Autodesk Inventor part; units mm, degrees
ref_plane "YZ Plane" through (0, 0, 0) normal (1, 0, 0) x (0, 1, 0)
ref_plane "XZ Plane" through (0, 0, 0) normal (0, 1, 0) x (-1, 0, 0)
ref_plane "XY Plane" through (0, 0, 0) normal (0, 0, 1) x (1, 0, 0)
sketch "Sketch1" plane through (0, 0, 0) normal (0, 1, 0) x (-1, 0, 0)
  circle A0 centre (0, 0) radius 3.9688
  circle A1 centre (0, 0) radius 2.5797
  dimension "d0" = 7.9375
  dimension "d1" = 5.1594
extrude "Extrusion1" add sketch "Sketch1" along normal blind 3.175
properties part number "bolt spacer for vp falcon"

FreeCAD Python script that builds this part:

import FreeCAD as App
import Part
import Sketcher
from FreeCAD import Vector
Q = App.Units.Quantity

doc = App.newDocument("Part")
params = doc.addObject("Spreadsheet::Sheet", "Params")
for row, (alias, value) in enumerate([
    ("sketch1_diameter", "0.3125 in"),
    ("sketch1_diameter2", "0.203126 in"),
    ("pad1_length", "0.125 in"),
], start=1):
    params.set(f"A{row}", alias)
    params.set(f"B{row}", "=" + value)
    params.setAlias(f"B{row}", alias)

body = doc.addObject("PartDesign::Body", "Body")

sketch1 = body.newObject("Sketcher::SketchObject", "Sketch")
sketch1.AttachmentSupport = (doc.getObject("XZ_Plane"), [""])
sketch1.MapMode = "FlatFace"
sketch1.addGeometry([
    Part.Circle(Vector(0, 0, 0), Vector(0, 0, 1), 4),
    Part.Circle(Vector(0, 0, 0), Vector(0, 0, 1), 2.6),
], False)
sketch1.addConstraint([
    Sketcher.Constraint("Coincident", 0, 3, -1, 1),
    Sketcher.Constraint("Coincident", 1, 3, -1, 1),
    Sketcher.Constraint("Diameter", 0, Q("0.3125 in")),
    Sketcher.Constraint("Diameter", 1, Q("0.203126 in")),
])
sketch1.setExpression("Constraints[2]", "Params.sketch1_diameter")
sketch1.setExpression("Constraints[3]", "Params.sketch1_diameter2")
pad1 = body.newObject("PartDesign::Pad", "Pad")
pad1.Profile = sketch1
pad1.setExpression("Length", "Params.pad1_length")
pad1.Reversed = True

doc.recompute()
